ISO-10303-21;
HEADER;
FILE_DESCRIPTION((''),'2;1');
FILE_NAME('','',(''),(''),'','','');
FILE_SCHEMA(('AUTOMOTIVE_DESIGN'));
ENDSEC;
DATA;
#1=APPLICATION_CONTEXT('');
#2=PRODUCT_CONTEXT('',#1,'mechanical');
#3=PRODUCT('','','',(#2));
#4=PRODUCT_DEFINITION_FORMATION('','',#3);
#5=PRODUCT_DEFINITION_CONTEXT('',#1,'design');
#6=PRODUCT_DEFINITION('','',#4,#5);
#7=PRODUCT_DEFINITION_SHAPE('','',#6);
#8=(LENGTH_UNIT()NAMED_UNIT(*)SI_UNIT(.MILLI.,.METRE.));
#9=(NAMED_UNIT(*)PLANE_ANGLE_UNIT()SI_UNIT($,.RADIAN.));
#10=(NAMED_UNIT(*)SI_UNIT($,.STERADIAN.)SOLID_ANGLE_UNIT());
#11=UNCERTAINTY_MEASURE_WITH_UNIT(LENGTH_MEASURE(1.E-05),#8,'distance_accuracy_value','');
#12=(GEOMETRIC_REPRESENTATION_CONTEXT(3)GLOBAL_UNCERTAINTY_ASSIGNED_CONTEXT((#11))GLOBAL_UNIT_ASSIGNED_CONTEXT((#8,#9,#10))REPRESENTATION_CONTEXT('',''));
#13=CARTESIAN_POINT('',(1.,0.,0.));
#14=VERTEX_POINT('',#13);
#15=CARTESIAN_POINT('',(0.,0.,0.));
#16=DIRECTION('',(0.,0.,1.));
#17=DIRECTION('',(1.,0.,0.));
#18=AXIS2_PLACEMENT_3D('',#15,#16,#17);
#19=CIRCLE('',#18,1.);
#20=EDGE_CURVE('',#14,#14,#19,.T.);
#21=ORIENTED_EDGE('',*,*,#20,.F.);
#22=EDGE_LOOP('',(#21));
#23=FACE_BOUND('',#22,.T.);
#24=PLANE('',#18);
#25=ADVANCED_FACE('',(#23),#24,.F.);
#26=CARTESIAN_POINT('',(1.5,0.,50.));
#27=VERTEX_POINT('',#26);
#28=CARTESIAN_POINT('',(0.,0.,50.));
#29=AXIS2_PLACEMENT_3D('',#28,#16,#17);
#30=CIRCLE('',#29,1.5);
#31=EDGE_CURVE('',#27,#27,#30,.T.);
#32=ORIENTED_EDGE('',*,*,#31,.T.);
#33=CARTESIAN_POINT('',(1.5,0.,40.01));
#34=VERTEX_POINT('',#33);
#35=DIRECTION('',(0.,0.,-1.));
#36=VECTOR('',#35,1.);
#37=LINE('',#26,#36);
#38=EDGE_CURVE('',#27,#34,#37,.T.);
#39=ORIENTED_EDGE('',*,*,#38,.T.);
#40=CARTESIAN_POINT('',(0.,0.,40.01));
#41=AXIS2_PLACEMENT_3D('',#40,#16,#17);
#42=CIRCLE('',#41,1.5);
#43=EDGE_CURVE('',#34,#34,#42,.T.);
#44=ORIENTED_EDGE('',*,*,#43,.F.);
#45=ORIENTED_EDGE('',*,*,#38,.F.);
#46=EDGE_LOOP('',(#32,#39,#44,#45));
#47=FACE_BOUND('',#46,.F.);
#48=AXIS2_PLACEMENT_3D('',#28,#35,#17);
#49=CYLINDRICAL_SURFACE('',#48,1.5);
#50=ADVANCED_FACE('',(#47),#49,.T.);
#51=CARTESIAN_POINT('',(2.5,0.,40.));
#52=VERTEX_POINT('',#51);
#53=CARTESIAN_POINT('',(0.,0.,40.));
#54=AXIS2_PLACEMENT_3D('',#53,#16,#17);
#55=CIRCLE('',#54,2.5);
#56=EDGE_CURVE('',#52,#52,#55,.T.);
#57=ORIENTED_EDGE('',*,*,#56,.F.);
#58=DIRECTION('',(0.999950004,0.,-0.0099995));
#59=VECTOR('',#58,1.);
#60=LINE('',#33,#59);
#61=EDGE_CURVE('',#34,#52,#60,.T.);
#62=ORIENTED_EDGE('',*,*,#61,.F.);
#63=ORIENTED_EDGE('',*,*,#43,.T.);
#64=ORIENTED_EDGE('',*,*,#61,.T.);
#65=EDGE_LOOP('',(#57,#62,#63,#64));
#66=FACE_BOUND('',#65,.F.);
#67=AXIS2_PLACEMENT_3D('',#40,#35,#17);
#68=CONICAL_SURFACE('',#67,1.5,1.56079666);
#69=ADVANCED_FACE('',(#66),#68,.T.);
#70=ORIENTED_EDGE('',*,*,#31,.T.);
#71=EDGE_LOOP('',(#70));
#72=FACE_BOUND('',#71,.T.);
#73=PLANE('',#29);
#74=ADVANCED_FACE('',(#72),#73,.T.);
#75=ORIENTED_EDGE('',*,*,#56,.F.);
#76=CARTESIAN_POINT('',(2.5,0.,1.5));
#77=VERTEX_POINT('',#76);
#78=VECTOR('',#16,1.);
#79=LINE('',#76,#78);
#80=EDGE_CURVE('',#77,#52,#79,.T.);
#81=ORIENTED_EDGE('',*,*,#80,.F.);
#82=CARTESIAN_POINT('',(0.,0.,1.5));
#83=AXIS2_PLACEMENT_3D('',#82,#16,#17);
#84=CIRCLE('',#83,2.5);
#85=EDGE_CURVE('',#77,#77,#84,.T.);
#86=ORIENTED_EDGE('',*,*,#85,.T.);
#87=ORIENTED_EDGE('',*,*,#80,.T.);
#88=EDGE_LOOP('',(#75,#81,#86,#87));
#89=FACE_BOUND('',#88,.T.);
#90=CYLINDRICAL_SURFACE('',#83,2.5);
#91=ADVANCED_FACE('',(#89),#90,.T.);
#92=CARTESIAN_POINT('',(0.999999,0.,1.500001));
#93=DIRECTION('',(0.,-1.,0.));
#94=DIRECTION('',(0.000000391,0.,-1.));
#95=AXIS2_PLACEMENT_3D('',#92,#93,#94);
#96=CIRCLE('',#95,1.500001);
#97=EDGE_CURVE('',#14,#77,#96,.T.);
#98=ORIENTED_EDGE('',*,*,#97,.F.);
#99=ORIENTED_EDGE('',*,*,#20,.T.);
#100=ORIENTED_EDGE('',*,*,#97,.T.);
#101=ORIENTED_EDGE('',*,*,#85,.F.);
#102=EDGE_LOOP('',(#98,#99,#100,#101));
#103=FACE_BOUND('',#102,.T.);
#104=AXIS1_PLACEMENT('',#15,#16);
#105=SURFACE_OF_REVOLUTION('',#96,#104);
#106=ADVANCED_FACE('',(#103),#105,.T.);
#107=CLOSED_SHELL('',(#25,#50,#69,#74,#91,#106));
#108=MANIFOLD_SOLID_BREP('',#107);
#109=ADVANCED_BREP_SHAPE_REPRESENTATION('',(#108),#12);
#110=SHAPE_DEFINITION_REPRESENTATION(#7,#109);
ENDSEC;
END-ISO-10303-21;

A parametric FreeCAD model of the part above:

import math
import FreeCAD as App
import Part
import Sketcher
Q = App.Units.Quantity

doc = App.newDocument("Part")
body = doc.addObject("PartDesign::Body", "Body")

# Sketch on XZ plane
sketch1 = doc.addObject("Sketcher::SketchObject", "Sketch")
body.addObject(sketch1)
sketch1.AttachmentSupport = (doc.XZ_Plane, [""])
sketch1.MapMode = "FlatFace"
sketch1.addGeometry([
    Part.LineSegment(App.Vector(0, 50, 0), App.Vector(0, 0, 0)),  # 0
    Part.LineSegment(App.Vector(0, 0, 0), App.Vector(1, 0, 0)),  # 1
    Part.ArcOfCircle(Part.Circle(App.Vector(1, 1.5, 0), App.Vector(0, 0, 1), 1.5), math.radians(-90), math.radians(0)),  # 2
    Part.LineSegment(App.Vector(2.5, 1.5, 0), App.Vector(2.5, 40, 0)),  # 3
    Part.LineSegment(App.Vector(2.5, 40, 0), App.Vector(1.5, 40, 0)),  # 4
    Part.LineSegment(App.Vector(1.5, 40, 0), App.Vector(1.5, 50, 0)),  # 5
    Part.LineSegment(App.Vector(1.5, 50, 0), App.Vector(0, 50, 0)),  # 6
], False)
sketch1.addConstraint([
    Sketcher.Constraint("Coincident", 0, 2, 1, 1),
    Sketcher.Constraint("Tangent", 1, 2, 2, 1),
    Sketcher.Constraint("Tangent", 2, 2, 3, 1),
    Sketcher.Constraint("Coincident", 3, 2, 4, 1),
    Sketcher.Constraint("Coincident", 4, 2, 5, 1),
    Sketcher.Constraint("Coincident", 5, 2, 6, 1),
    Sketcher.Constraint("Coincident", 6, 2, 0, 1),
    Sketcher.Constraint("Vertical", 0),
    Sketcher.Constraint("Horizontal", 1),
    Sketcher.Constraint("Vertical", 3),
    Sketcher.Constraint("Vertical", 5),
    Sketcher.Constraint("Horizontal", 6),
    Sketcher.Constraint("Coincident", 0, 2, -1, 1),
    Sketcher.Constraint("Radius", 2, Q("1.500001 mm")),
    Sketcher.Constraint("DistanceX", 1, 1, 1, 2, Q("1 mm")),
    Sketcher.Constraint("DistanceY", 0, 2, 0, 1, Q("50 mm")),
    Sketcher.Constraint("DistanceX", 6, 2, 6, 1, Q("1.5 mm")),
    Sketcher.Constraint("DistanceY", 3, 1, 3, 2, Q("38.5 mm")),
    Sketcher.Constraint("DistanceY", 5, 1, 5, 2, Q("9.99 mm")),
])
revolution = doc.addObject("PartDesign::Revolution", "Revolution")
body.addObject(revolution)
revolution.Profile = sketch1
revolution.ReferenceAxis = (sketch1, ["V_Axis"])
revolution.Angle = 360

doc.recompute()
